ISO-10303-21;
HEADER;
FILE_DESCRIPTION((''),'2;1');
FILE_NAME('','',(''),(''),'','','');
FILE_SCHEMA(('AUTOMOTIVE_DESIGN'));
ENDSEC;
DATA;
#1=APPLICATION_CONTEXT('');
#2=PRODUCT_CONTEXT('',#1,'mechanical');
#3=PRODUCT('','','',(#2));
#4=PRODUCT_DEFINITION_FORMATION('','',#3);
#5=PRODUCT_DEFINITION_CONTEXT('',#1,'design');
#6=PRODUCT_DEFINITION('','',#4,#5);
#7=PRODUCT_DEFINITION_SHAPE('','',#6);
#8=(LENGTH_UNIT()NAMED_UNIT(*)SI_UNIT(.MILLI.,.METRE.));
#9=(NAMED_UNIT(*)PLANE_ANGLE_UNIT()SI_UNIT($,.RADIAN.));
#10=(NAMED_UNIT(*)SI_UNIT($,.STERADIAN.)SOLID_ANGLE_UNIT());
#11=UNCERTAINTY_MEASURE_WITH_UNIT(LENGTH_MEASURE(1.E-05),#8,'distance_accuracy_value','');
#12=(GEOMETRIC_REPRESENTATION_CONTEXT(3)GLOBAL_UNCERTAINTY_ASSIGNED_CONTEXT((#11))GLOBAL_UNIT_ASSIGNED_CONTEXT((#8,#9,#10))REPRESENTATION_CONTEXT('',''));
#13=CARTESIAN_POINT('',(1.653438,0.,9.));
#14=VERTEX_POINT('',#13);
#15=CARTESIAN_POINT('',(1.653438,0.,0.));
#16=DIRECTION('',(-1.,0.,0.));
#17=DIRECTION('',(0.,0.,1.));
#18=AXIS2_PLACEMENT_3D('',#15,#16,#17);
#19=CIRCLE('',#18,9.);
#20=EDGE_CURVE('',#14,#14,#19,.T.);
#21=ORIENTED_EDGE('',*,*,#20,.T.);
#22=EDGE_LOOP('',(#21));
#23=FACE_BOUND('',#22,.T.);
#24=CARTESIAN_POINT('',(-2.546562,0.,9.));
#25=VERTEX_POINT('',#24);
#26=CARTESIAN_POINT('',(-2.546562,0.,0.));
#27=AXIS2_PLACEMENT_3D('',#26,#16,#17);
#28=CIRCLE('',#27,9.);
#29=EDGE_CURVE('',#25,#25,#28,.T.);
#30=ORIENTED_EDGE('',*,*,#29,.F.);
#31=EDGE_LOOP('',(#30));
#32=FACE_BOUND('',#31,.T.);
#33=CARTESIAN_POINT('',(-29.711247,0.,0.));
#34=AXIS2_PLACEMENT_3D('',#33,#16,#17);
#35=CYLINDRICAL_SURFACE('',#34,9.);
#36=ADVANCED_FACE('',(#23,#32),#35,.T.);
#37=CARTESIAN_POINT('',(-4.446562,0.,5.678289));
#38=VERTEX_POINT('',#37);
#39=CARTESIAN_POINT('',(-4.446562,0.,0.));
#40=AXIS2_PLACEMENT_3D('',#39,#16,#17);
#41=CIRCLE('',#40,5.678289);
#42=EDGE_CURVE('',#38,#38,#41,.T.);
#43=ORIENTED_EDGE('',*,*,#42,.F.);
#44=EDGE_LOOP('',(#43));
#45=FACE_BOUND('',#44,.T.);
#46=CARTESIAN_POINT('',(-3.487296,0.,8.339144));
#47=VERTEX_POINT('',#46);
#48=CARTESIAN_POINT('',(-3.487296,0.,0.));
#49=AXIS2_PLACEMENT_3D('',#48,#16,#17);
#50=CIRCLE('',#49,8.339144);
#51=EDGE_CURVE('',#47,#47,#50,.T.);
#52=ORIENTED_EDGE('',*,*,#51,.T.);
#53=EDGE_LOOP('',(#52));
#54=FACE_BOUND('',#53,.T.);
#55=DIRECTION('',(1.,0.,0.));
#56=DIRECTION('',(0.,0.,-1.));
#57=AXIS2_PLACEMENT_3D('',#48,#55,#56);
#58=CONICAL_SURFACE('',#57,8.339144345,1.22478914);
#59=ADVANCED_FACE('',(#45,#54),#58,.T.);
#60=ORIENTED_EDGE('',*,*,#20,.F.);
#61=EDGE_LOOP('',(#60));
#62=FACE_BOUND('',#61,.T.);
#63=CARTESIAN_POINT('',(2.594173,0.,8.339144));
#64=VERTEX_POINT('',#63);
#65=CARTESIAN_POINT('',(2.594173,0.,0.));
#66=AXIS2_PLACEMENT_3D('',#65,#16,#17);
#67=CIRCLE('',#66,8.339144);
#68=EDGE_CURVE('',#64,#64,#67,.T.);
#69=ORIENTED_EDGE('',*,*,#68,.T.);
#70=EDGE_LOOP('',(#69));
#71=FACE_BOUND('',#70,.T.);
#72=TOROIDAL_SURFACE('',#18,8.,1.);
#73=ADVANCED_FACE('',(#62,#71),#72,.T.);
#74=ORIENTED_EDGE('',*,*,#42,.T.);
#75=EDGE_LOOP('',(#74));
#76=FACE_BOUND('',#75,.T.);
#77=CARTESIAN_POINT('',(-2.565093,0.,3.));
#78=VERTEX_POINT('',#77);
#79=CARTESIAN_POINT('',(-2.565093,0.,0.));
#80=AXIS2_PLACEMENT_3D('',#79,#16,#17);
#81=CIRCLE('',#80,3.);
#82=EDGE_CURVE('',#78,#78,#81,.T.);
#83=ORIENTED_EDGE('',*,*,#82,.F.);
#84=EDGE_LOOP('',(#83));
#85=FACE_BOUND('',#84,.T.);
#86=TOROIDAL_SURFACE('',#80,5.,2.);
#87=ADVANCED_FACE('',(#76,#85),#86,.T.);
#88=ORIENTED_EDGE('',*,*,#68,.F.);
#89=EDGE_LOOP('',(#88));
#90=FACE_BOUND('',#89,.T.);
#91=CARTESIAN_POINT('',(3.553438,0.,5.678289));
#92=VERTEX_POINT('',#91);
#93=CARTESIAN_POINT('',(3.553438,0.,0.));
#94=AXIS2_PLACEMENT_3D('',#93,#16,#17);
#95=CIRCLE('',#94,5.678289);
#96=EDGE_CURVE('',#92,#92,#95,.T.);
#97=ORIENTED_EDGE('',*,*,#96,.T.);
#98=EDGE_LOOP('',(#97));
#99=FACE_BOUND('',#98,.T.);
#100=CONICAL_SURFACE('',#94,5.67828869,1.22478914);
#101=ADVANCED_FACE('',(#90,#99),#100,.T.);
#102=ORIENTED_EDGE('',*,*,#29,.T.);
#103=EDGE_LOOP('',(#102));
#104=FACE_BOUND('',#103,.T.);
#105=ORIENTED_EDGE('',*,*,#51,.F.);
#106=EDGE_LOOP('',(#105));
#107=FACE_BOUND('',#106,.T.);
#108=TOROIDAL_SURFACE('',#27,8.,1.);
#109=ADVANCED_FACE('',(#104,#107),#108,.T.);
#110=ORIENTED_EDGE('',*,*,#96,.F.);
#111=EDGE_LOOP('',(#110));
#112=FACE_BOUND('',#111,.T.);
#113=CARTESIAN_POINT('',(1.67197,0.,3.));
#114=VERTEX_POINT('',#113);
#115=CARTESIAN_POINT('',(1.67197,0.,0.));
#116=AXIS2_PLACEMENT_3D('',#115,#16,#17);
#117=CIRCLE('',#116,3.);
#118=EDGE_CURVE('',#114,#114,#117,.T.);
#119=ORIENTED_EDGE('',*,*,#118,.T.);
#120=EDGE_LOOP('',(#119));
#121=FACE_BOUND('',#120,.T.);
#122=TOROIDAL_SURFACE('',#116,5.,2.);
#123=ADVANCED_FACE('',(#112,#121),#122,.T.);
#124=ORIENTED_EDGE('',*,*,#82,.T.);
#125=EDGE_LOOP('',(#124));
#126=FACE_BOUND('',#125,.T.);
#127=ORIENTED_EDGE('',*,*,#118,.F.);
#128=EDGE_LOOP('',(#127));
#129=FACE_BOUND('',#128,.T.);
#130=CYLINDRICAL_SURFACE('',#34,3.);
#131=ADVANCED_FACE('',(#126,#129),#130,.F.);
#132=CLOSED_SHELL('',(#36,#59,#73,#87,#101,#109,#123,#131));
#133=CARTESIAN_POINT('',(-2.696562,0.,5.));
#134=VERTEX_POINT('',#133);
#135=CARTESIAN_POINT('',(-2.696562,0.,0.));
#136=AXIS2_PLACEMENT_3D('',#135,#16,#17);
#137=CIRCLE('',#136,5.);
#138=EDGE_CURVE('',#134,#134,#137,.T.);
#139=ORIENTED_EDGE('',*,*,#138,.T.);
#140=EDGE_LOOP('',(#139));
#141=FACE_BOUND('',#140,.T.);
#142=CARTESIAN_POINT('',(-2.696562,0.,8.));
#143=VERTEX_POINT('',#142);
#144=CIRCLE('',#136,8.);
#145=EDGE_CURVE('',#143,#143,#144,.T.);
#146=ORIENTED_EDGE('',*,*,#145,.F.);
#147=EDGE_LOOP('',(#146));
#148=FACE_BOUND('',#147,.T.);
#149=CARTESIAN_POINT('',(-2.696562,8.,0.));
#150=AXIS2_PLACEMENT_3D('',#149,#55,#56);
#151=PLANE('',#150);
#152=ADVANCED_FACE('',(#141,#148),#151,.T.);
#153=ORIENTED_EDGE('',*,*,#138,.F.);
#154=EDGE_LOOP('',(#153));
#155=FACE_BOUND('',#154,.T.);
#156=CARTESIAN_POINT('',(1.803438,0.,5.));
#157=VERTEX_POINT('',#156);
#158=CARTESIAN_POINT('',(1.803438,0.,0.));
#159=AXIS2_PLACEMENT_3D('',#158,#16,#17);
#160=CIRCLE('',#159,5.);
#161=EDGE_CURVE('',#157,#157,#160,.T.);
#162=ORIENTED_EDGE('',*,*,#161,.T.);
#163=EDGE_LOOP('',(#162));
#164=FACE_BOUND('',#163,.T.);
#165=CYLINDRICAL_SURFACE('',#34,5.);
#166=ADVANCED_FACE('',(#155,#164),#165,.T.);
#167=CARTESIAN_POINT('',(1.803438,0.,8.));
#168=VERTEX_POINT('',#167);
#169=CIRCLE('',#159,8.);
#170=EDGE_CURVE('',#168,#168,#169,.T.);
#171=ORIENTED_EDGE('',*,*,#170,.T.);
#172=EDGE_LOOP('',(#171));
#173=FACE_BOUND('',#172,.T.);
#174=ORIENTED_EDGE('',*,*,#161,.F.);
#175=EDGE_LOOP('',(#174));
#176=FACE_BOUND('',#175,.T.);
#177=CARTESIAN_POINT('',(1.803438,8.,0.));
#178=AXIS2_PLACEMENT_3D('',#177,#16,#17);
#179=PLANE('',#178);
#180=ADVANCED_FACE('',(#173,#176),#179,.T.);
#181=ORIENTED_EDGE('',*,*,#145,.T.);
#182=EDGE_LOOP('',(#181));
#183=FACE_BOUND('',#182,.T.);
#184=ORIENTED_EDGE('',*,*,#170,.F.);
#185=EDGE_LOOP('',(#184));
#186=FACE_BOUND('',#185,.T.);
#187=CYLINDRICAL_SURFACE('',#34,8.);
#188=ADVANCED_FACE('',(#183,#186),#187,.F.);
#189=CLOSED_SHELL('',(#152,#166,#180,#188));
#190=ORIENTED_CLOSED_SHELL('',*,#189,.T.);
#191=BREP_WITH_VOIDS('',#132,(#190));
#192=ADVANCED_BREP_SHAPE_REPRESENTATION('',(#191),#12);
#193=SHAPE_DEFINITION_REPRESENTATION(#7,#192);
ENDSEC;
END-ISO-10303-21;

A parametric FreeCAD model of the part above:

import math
import FreeCAD as App
import Part
import Sketcher
Q = App.Units.Quantity


def add_polygon(sketch, points):
    """Adds a closed chain of lines whose ends are joined by coincident constraints."""
    first, n = sketch.GeometryCount, len(points)
    for a, b in zip(points, points[1:] + points[:1]):
        sketch.addGeometry(Part.LineSegment(App.Vector(*a, 0), App.Vector(*b, 0)), False)
    for i in range(n):
        sketch.addConstraint(Sketcher.Constraint("Coincident", first + i, 2, first + (i + 1) % n, 1))

doc = App.newDocument("Part")
body = doc.addObject("PartDesign::Body", "Body")

sketch1 = doc.addObject("Sketcher::SketchObject", "Sketch")
body.addObject(sketch1)
sketch1.AttachmentSupport = (doc.XY_Plane, [""])
sketch1.MapMode = "FlatFace"
sketch1.addGeometry(Part.LineSegment(App.Vector(3.553438, 5.678289, 0), App.Vector(2.594173, 8.339144, 0)), False)
sketch1.addGeometry(Part.ArcOfCircle(Part.Circle(App.Vector(1.653438, 8, 0), App.Vector(0, 0, 1), 1), math.radians(19.824751), math.radians(90)), False)
sketch1.addGeometry(Part.LineSegment(App.Vector(1.653438, 9, 0), App.Vector(-2.546562, 9, 0)), False)
sketch1.addGeometry(Part.ArcOfCircle(Part.Circle(App.Vector(-2.546562, 8, 0), App.Vector(0, 0, 1), 1), math.radians(90), math.radians(160.175249)), False)
sketch1.addGeometry(Part.LineSegment(App.Vector(-3.487296, 8.339144, 0), App.Vector(-4.446562, 5.678289, 0)), False)
sketch1.addGeometry(Part.ArcOfCircle(Part.Circle(App.Vector(-2.565093, 5, 0), App.Vector(0, 0, 1), 2), math.radians(160.175249), math.radians(270)), False)
sketch1.addGeometry(Part.LineSegment(App.Vector(-2.565093, 3, 0), App.Vector(1.67197, 3, 0)), False)
sketch1.addGeometry(Part.ArcOfCircle(Part.Circle(App.Vector(1.67197, 5, 0), App.Vector(0, 0, 1), 2), math.radians(-90), math.radians(19.824752)), False)
add_polygon(sketch1, [(-2.696562, 5), (-2.696562, 8), (1.803438, 8), (1.803438, 5)])
sketch1.addConstraint(Sketcher.Constraint("Tangent", 0, 2, 1, 1))
sketch1.addConstraint(Sketcher.Constraint("Tangent", 1, 2, 2, 1))
sketch1.addConstraint(Sketcher.Constraint("Tangent", 2, 2, 3, 1))
sketch1.addConstraint(Sketcher.Constraint("Tangent", 3, 2, 4, 1))
sketch1.addConstraint(Sketcher.Constraint("Tangent", 4, 2, 5, 1))
sketch1.addConstraint(Sketcher.Constraint("Tangent", 5, 2, 6, 1))
sketch1.addConstraint(Sketcher.Constraint("Tangent", 6, 2, 7, 1))
sketch1.addConstraint(Sketcher.Constraint("Tangent", 7, 2, 0, 1))
sketch1.addConstraint(Sketcher.Constraint("Horizontal", 2))
sketch1.addConstraint(Sketcher.Constraint("Horizontal", 6))
sketch1.addConstraint(Sketcher.Constraint("Vertical", 8))
sketch1.addConstraint(Sketcher.Constraint("Horizontal", 9))
sketch1.addConstraint(Sketcher.Constraint("Vertical", 10))
sketch1.addConstraint(Sketcher.Constraint("Horizontal", 11))
sketch1.addConstraint(Sketcher.Constraint("Equal", 1, 3))
sketch1.addConstraint(Sketcher.Constraint("Equal", 5, 7))
sketch1.addConstraint(Sketcher.Constraint("Horizontal", 0, 2, 3, 2))
sketch1.addConstraint(Sketcher.Constraint("Horizontal", 3, 3, 8, 2))
sketch1.addConstraint(Sketcher.Constraint("Horizontal", 7, 3, 10, 2))
sketch1.addConstraint(Sketcher.Constraint("Radius", 1, Q("1 mm")))
sketch1.addConstraint(Sketcher.Constraint("Radius", 5, Q("2 mm")))
sketch1.addConstraint(Sketcher.Constraint("DistanceY", 8, 1, 8, 2, Q("3 mm")))
sketch1.addConstraint(Sketcher.Constraint("DistanceX", 2, 2, 2, 1, Q("4.2 mm")))
sketch1.addConstraint(Sketcher.Constraint("DistanceX", 9, 1, 9, 2, Q("4.5 mm")))
sketch1.addConstraint(Sketcher.Constraint("DistanceY", -1, 1, 1, 3, Q("8 mm")))
sketch1.addConstraint(Sketcher.Constraint("DistanceX", 4, 2, 3, 3, Q("1.9 mm")))
sketch1.addConstraint(Sketcher.Constraint("DistanceX", 8, 2, 3, 3, Q("0.15 mm")))
sketch1.addConstraint(Sketcher.Constraint("DistanceX", -1, 1, 1, 3, Q("1.653438 mm")))
revolution = doc.addObject("PartDesign::Revolution", "Revolution")
body.addObject(revolution)
revolution.Profile = sketch1
revolution.ReferenceAxis = (sketch1, ["H_Axis"])
revolution.Angle = 360

doc.recompute()
